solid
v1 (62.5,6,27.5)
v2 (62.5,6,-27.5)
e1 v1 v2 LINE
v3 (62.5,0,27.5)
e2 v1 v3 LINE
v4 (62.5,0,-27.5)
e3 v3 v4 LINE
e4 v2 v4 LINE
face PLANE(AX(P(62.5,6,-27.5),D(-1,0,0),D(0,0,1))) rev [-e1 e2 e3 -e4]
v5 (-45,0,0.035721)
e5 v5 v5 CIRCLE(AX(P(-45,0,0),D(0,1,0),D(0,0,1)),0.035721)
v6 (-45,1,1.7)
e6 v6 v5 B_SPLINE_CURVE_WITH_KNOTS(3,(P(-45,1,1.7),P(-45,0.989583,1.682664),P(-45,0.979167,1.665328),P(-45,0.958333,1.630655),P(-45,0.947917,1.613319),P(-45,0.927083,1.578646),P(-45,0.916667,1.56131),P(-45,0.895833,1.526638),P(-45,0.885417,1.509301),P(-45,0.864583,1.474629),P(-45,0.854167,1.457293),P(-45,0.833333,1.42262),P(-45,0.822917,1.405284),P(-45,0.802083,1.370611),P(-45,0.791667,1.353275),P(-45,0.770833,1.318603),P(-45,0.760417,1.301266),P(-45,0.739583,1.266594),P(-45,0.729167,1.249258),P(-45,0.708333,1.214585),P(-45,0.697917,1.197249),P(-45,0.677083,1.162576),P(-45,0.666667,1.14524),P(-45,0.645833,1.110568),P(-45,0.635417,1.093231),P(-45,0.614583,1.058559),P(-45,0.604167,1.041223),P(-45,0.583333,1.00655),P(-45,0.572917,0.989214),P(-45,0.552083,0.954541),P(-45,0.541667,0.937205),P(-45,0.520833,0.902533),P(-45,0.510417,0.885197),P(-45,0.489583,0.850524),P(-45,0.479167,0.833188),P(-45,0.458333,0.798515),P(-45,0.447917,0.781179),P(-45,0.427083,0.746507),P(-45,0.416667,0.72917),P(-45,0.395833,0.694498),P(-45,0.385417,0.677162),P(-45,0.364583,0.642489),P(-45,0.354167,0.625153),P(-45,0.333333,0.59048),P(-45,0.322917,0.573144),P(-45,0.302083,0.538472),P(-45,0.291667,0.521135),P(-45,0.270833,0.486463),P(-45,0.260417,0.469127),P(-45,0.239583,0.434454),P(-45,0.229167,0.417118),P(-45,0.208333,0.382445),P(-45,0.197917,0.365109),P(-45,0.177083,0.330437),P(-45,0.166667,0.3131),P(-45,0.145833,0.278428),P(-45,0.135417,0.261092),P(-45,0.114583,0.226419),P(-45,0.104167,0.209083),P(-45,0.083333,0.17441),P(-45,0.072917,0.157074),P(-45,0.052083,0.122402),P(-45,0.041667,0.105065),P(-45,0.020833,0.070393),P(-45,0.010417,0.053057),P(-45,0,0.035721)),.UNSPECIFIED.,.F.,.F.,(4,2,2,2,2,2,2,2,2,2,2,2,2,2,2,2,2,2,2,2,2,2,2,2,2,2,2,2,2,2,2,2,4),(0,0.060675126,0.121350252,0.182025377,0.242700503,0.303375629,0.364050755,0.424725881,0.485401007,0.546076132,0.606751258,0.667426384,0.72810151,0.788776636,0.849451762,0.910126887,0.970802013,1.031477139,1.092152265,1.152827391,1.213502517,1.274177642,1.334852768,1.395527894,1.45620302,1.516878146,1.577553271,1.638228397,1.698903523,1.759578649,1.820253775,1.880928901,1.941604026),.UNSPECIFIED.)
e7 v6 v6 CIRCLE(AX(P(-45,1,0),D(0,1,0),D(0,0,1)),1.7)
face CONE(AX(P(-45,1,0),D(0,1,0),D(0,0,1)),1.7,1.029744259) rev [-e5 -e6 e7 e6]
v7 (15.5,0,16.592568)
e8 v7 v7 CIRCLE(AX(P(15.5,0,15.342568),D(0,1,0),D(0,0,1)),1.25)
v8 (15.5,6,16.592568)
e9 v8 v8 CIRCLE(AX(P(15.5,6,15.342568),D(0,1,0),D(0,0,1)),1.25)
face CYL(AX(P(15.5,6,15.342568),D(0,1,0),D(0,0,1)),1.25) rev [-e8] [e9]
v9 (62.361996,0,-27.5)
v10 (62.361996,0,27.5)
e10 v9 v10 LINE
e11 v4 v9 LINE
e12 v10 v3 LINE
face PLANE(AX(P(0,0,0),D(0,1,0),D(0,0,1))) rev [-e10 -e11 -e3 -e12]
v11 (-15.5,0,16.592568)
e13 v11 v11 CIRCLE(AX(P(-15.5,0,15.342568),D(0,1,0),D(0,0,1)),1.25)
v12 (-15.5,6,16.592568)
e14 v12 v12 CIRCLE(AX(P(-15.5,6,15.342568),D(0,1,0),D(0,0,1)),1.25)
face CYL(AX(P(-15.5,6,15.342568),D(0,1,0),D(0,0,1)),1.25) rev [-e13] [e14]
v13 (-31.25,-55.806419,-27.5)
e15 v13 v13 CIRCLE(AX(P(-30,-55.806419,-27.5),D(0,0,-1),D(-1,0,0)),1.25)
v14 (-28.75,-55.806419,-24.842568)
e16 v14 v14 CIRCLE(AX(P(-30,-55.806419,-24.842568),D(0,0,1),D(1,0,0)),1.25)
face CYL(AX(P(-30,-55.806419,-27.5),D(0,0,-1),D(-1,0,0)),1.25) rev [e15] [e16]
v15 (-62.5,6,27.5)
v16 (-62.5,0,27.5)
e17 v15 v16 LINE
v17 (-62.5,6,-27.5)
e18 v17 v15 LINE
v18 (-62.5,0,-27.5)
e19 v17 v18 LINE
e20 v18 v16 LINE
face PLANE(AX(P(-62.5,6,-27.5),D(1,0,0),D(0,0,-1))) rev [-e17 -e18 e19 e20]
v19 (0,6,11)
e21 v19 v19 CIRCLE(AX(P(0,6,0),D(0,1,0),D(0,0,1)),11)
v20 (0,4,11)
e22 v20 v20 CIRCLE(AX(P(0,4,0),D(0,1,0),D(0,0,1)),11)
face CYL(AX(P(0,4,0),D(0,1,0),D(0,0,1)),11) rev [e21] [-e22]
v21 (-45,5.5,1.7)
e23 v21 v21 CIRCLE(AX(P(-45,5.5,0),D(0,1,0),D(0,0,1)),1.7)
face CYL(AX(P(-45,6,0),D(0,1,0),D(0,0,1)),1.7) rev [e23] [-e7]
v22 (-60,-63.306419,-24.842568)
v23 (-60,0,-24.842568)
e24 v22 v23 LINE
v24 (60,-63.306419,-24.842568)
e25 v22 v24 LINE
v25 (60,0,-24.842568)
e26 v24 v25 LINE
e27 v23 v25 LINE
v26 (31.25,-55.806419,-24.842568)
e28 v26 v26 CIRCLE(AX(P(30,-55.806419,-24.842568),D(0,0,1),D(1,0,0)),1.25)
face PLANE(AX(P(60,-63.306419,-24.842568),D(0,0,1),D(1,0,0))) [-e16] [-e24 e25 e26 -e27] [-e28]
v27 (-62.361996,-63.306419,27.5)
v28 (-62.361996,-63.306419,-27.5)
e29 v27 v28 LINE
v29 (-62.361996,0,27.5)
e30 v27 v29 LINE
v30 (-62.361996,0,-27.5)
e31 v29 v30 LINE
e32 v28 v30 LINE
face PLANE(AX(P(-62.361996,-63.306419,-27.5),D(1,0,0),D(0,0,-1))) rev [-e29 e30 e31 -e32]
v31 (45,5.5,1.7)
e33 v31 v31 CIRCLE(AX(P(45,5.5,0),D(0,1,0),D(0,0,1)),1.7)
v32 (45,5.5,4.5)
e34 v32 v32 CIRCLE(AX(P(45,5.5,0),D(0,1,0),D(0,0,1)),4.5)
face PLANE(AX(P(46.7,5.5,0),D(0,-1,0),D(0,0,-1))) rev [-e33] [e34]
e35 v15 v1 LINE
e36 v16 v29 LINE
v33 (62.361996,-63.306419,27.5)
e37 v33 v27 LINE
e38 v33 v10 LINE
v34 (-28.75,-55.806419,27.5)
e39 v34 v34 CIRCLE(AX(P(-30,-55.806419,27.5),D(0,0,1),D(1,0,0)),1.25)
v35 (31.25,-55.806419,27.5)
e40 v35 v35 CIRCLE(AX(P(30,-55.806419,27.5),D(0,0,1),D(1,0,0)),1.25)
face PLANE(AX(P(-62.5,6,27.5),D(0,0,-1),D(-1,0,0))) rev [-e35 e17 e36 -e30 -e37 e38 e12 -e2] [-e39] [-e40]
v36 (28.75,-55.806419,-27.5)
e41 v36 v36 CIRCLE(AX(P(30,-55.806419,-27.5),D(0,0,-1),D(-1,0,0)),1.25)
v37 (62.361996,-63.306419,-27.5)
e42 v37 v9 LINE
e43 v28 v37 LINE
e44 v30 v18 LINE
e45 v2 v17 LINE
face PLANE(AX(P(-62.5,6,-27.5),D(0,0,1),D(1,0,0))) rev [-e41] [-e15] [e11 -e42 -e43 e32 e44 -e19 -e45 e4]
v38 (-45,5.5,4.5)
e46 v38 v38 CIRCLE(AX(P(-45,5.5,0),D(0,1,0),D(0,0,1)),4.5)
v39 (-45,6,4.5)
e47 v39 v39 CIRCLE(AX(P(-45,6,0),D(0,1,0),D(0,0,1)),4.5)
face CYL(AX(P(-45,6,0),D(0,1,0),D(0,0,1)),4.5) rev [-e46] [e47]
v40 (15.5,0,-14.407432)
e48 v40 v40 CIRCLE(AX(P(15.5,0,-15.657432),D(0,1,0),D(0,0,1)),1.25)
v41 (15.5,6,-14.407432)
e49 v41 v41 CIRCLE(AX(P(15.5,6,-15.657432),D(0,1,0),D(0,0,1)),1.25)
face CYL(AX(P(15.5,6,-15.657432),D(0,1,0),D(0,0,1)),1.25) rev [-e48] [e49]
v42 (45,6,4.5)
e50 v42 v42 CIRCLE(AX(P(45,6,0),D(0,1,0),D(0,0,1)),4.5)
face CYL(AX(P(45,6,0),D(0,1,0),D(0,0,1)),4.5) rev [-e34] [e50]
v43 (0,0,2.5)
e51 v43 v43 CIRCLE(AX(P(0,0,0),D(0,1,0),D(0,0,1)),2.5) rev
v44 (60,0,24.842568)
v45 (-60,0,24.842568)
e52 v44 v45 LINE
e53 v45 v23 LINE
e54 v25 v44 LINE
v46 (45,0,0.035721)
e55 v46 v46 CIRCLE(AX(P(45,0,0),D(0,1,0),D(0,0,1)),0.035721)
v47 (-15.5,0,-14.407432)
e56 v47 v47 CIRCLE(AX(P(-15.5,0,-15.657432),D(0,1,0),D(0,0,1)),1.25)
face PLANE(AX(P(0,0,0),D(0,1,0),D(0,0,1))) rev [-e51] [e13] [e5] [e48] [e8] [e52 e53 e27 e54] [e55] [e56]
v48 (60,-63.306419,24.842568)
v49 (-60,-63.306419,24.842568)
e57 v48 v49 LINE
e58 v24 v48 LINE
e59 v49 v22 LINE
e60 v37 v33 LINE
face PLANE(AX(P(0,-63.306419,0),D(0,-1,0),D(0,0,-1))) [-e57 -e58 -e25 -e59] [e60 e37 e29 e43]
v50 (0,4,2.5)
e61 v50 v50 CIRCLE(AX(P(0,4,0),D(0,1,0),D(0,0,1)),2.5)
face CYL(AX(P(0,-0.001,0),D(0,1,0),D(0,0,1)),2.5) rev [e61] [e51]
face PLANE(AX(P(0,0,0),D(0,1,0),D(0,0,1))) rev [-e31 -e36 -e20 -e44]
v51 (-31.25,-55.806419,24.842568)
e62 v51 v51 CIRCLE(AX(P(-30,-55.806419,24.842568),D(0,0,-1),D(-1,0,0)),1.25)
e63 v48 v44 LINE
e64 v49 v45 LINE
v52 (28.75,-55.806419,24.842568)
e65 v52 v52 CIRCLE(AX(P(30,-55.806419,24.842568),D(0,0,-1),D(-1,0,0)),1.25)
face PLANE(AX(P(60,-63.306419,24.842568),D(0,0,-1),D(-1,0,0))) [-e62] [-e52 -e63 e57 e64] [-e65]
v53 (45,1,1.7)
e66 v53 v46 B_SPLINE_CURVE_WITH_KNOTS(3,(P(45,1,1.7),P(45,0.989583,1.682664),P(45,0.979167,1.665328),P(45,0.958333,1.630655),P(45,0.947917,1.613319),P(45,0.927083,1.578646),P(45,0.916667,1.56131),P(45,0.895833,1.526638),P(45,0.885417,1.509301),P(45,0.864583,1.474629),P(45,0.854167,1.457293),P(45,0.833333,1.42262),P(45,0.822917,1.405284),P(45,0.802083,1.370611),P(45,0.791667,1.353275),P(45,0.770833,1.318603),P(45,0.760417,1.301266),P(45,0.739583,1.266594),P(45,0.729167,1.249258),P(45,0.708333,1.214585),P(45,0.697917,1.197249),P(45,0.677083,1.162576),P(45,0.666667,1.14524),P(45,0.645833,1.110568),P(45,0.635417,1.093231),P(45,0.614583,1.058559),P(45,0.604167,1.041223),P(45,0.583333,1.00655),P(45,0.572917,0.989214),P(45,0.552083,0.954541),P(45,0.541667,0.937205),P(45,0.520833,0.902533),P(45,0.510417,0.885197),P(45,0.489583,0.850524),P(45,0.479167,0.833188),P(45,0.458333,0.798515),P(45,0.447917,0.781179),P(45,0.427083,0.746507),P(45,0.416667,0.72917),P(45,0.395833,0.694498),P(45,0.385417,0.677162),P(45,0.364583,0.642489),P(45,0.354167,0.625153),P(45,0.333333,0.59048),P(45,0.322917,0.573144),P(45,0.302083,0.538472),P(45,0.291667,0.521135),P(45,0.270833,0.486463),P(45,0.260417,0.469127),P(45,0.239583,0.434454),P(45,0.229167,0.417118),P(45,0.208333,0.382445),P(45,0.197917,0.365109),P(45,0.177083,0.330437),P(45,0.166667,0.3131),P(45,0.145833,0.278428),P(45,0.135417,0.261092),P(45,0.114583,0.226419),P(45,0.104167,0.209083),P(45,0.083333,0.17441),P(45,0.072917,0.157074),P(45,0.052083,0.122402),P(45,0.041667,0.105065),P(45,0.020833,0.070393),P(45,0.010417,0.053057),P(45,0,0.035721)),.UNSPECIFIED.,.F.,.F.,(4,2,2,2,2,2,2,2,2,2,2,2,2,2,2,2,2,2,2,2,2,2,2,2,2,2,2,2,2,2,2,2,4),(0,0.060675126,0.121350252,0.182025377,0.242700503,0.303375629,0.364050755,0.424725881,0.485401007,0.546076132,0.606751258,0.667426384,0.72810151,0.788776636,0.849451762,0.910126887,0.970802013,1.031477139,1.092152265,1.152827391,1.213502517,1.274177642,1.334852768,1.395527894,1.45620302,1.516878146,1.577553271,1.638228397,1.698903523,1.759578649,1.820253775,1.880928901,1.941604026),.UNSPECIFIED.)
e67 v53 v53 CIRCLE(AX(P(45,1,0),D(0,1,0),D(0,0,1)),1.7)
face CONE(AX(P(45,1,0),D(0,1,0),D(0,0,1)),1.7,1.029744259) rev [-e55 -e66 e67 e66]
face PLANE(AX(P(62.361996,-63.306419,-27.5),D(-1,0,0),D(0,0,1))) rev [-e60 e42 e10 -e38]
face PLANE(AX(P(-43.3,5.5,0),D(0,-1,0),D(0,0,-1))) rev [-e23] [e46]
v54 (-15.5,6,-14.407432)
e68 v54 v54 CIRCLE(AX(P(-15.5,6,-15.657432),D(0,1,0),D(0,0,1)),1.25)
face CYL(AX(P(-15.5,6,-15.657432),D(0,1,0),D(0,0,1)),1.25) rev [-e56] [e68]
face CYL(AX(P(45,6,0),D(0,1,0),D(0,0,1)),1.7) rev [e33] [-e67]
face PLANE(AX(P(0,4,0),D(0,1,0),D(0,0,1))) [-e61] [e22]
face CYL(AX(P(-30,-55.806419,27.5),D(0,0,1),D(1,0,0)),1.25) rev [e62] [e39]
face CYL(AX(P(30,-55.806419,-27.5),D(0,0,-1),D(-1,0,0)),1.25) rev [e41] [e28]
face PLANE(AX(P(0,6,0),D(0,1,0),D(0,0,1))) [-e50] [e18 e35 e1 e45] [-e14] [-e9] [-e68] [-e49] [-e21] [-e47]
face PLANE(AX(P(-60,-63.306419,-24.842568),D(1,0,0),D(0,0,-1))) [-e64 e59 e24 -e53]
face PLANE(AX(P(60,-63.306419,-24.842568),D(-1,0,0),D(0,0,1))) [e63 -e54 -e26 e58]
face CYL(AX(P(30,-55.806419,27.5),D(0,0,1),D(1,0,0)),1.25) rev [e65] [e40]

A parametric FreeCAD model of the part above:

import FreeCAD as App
import Part
import Sketcher
Q = App.Units.Quantity


def add_polygon(sketch, points):
    """Adds a closed chain of lines whose ends are joined by coincident constraints."""
    first, n = sketch.GeometryCount, len(points)
    for a, b in zip(points, points[1:] + points[:1]):
        sketch.addGeometry(Part.LineSegment(App.Vector(*a, 0), App.Vector(*b, 0)), False)
    for i in range(n):
        sketch.addConstraint(Sketcher.Constraint("Coincident", first + i, 2, first + (i + 1) % n, 1))

doc = App.newDocument("Part")
body = doc.addObject("PartDesign::Body", "Body")

sketch1 = doc.addObject("Sketcher::SketchObject", "Sketch")
body.addObject(sketch1)
sketch1.AttachmentSupport = (doc.XZ_Plane, [""])
sketch1.MapMode = "FlatFace"
add_polygon(sketch1, [(-62, -28), (-62, 28), (62, 28), (62, -28)])
sketch1.addConstraint([
    Sketcher.Constraint("Vertical", 0),
    Sketcher.Constraint("Horizontal", 1),
    Sketcher.Constraint("Vertical", 2),
    Sketcher.Constraint("Horizontal", 3),
    Sketcher.Constraint("Symmetric", 0, 2, 2, 2, -1, 1),
    Sketcher.Constraint("DistanceX", 1, 1, 1, 2, Q("125 mm")),
    Sketcher.Constraint("DistanceY", 0, 1, 0, 2, Q("55 mm")),
])
pad1 = doc.addObject("PartDesign::Pad", "Pad")
body.addObject(pad1)
pad1.Profile = sketch1
pad1.Length = 6
pad1.Reversed = True

sketch2 = doc.addObject("Sketcher::SketchObject", "Sketch001")
body.addObject(sketch2)
sketch2.AttachmentSupport = (doc.XZ_Plane, [""])
sketch2.MapMode = "FlatFace"
sketch2.AttachmentOffset = App.Placement(App.Vector(0, 0, -6), App.Rotation())
sketch2.addGeometry(Part.Circle(App.Vector(0, 0, 0), App.Vector(0, 0, 1), 11), False)
sketch2.addConstraint([
    Sketcher.Constraint("Coincident", 0, 3, -1, 1),
    Sketcher.Constraint("Diameter", 0, Q("22 mm")),
])
pocket1 = doc.addObject("PartDesign::Pocket", "Pocket")
body.addObject(pocket1)
pocket1.Profile = sketch2
pocket1.Length = 2
pocket1.Reversed = True

sketch3 = doc.addObject("Sketcher::SketchObject", "Sketch002")
body.addObject(sketch3)
sketch3.AttachmentSupport = (doc.XZ_Plane, [""])
sketch3.MapMode = "FlatFace"
sketch3.AttachmentOffset = App.Placement(App.Vector(0, 0, -4), App.Rotation())
sketch3.addGeometry(Part.Circle(App.Vector(0, 0, 0), App.Vector(0, 0, 1), 2.5), False)
sketch3.addConstraint([
    Sketcher.Constraint("Coincident", 0, 3, -1, 1),
    Sketcher.Constraint("Diameter", 0, Q("5 mm")),
])
pocket2 = doc.addObject("PartDesign::Pocket", "Pocket001")
body.addObject(pocket2)
pocket2.Profile = sketch3
pocket2.Type = "UpToFirst"
pocket2.Reversed = True

sketch4 = doc.addObject("Sketcher::SketchObject", "Sketch003")
body.addObject(sketch4)
sketch4.AttachmentSupport = (doc.XZ_Plane, [""])
sketch4.MapMode = "FlatFace"
sketch4.AttachmentOffset = App.Placement(App.Vector(0, 0, -6), App.Rotation())
sketch4.addGeometry([
    Part.Circle(App.Vector(15.5, -15.7, 0), App.Vector(0, 0, 1), 1.2),
    Part.Circle(App.Vector(15.5, 15.3, 0), App.Vector(0, 0, 1), 1.2),
    Part.Circle(App.Vector(-15.5, 15.3, 0), App.Vector(0, 0, 1), 1.2),
    Part.Circle(App.Vector(-15.5, -15.7, 0), App.Vector(0, 0, 1), 1.2),
], False)
sketch4.addConstraint([
    Sketcher.Constraint("Equal", 0, 1),
    Sketcher.Constraint("Equal", 1, 2),
    Sketcher.Constraint("Equal", 2, 3),
    Sketcher.Constraint("Symmetric", 1, 3, 2, 3, -2),
    Sketcher.Constraint("Symmetric", 0, 3, 3, 3, -2),
    Sketcher.Constraint("Vertical", 0, 3, 1, 3),
    Sketcher.Constraint("Diameter", 0, Q("2.5 mm")),
    Sketcher.Constraint("DistanceY", 0, 3, 1, 3, Q("31 mm")),
    Sketcher.Constraint("DistanceX", 2, 3, 1, 3, Q("31 mm")),
    Sketcher.Constraint("DistanceY", 0, 3, -1, 1, Q("15.657432 mm")),
])
doc.recompute()
hole = doc.addObject("PartDesign::Hole", "Hole")
body.addObject(hole)
hole.Profile = sketch4
hole.ThreadType = "None"
hole.Diameter = 2.5
hole.DepthType = "Dimension"
hole.Depth = 7.5
hole.DrillPoint = "Angled"
hole.DrillPointAngle = 118
hole.Reversed = True

sketch5 = doc.addObject("Sketcher::SketchObject", "Sketch004")
body.addObject(sketch5)
sketch5.AttachmentSupport = (doc.XZ_Plane, [""])
sketch5.MapMode = "FlatFace"
add_polygon(sketch5, [(-62, 28), (-62, -28), (62, -28), (62, 28)])
add_polygon(sketch5, [(60, -25), (-60, -25), (-60, 25), (60, 25)])
sketch5.addConstraint([
    Sketcher.Constraint("Vertical", 0),
    Sketcher.Constraint("Horizontal", 1),
    Sketcher.Constraint("Vertical", 2),
    Sketcher.Constraint("Horizontal", 3),
    Sketcher.Constraint("Horizontal", 4),
    Sketcher.Constraint("Vertical", 5),
    Sketcher.Constraint("Horizontal", 6),
    Sketcher.Constraint("Vertical", 7),
    Sketcher.Constraint("Symmetric", 0, 2, 2, 2, -1, 1),
    Sketcher.Constraint("Symmetric", 4, 2, 6, 2, -1, 1),
    Sketcher.Constraint("DistanceX", 4, 2, 4, 1, Q("120 mm")),
    Sketcher.Constraint("DistanceY", 0, 2, 0, 1, Q("55 mm")),
    Sketcher.Constraint("DistanceX", 1, 1, 1, 2, Q("124.723992 mm")),
    Sketcher.Constraint("DistanceY", 5, 1, 5, 2, Q("49.685135 mm")),
])
pad2 = doc.addObject("PartDesign::Pad", "Pad001")
body.addObject(pad2)
pad2.Profile = sketch5
pad2.Length = 63.306419

sketch6 = doc.addObject("Sketcher::SketchObject", "Sketch005")
body.addObject(sketch6)
sketch6.AttachmentSupport = (doc.XY_Plane, [""])
sketch6.MapMode = "FlatFace"
sketch6.AttachmentOffset = App.Placement(App.Vector(0, 0, -27.5), App.Rotation())
sketch6.addGeometry([
    Part.Circle(App.Vector(-30, -55.8, 0), App.Vector(0, 0, 1), 1.2),
    Part.Circle(App.Vector(30, -55.8, 0), App.Vector(0, 0, 1), 1.2),
], False)
sketch6.addConstraint([
    Sketcher.Constraint("Equal", 0, 1),
    Sketcher.Constraint("Symmetric", 0, 3, 1, 3, -2),
    Sketcher.Constraint("Diameter", 0, Q("2.5 mm")),
    Sketcher.Constraint("DistanceX", 0, 3, -1, 1, Q("30 mm")),
    Sketcher.Constraint("DistanceY", 0, 3, -1, 1, Q("55.806419 mm")),
])
doc.recompute()
hole2 = doc.addObject("PartDesign::Hole", "Hole001")
body.addObject(hole2)
hole2.Profile = sketch6
hole2.ThreadType = "None"
hole2.Diameter = 2.5
hole2.DepthType = "Dimension"
hole2.Depth = 2.657432
hole2.DrillPoint = "Flat"
hole2.Reversed = True

sketch7 = doc.addObject("Sketcher::SketchObject", "Sketch006")
body.addObject(sketch7)
sketch7.AttachmentSupport = (doc.XY_Plane, [""])
sketch7.MapMode = "FlatFace"
sketch7.AttachmentOffset = App.Placement(App.Vector(0, 0, 27.5), App.Rotation())
sketch7.addGeometry([
    Part.Circle(App.Vector(30, -55.8, 0), App.Vector(0, 0, 1), 1.2),
    Part.Circle(App.Vector(-30, -55.8, 0), App.Vector(0, 0, 1), 1.2),
], False)
sketch7.addConstraint([
    Sketcher.Constraint("Equal", 0, 1),
    Sketcher.Constraint("Symmetric", 0, 3, 1, 3, -2),
    Sketcher.Constraint("Diameter", 0, Q("2.5 mm")),
    Sketcher.Constraint("DistanceX", -1, 1, 0, 3, Q("30 mm")),
    Sketcher.Constraint("DistanceY", 0, 3, -1, 1, Q("55.806419 mm")),
])
doc.recompute()
hole3 = doc.addObject("PartDesign::Hole", "Hole002")
body.addObject(hole3)
hole3.Profile = sketch7
hole3.ThreadType = "None"
hole3.Diameter = 2.5
hole3.DepthType = "ThroughAll"

sketch8 = doc.addObject("Sketcher::SketchObject", "Sketch007")
body.addObject(sketch8)
sketch8.AttachmentSupport = (doc.XZ_Plane, [""])
sketch8.MapMode = "FlatFace"
sketch8.AttachmentOffset = App.Placement(App.Vector(0, 0, -6), App.Rotation())
sketch8.addGeometry([
    Part.Circle(App.Vector(-45, 0, 0), App.Vector(0, 0, 1), 1.7),
    Part.Circle(App.Vector(45, 0, 0), App.Vector(0, 0, 1), 1.7),
], False)
sketch8.addConstraint([
    Sketcher.Constraint("Equal", 0, 1),
    Sketcher.Constraint("Symmetric", 0, 3, 1, 3, -1, 1),
    Sketcher.Constraint("PointOnObject", 0, 3, -1),
    Sketcher.Constraint("Diameter", 0, Q("3.4 mm")),
    Sketcher.Constraint("DistanceX", 0, 3, -1, 1, Q("45 mm")),
])
doc.recompute()
hole4 = doc.addObject("PartDesign::Hole", "Hole003")
body.addObject(hole4)
hole4.Profile = sketch8
hole4.ThreadType = "None"
hole4.Diameter = 3.4
hole4.DepthType = "Dimension"
hole4.Depth = 5
hole4.DrillPoint = "Angled"
hole4.DrillPointAngle = 118
hole4.HoleCutType = "Counterbore"
hole4.HoleCutDiameter = 9
hole4.HoleCutDepth = 0.5
hole4.Reversed = True

doc.recompute()
